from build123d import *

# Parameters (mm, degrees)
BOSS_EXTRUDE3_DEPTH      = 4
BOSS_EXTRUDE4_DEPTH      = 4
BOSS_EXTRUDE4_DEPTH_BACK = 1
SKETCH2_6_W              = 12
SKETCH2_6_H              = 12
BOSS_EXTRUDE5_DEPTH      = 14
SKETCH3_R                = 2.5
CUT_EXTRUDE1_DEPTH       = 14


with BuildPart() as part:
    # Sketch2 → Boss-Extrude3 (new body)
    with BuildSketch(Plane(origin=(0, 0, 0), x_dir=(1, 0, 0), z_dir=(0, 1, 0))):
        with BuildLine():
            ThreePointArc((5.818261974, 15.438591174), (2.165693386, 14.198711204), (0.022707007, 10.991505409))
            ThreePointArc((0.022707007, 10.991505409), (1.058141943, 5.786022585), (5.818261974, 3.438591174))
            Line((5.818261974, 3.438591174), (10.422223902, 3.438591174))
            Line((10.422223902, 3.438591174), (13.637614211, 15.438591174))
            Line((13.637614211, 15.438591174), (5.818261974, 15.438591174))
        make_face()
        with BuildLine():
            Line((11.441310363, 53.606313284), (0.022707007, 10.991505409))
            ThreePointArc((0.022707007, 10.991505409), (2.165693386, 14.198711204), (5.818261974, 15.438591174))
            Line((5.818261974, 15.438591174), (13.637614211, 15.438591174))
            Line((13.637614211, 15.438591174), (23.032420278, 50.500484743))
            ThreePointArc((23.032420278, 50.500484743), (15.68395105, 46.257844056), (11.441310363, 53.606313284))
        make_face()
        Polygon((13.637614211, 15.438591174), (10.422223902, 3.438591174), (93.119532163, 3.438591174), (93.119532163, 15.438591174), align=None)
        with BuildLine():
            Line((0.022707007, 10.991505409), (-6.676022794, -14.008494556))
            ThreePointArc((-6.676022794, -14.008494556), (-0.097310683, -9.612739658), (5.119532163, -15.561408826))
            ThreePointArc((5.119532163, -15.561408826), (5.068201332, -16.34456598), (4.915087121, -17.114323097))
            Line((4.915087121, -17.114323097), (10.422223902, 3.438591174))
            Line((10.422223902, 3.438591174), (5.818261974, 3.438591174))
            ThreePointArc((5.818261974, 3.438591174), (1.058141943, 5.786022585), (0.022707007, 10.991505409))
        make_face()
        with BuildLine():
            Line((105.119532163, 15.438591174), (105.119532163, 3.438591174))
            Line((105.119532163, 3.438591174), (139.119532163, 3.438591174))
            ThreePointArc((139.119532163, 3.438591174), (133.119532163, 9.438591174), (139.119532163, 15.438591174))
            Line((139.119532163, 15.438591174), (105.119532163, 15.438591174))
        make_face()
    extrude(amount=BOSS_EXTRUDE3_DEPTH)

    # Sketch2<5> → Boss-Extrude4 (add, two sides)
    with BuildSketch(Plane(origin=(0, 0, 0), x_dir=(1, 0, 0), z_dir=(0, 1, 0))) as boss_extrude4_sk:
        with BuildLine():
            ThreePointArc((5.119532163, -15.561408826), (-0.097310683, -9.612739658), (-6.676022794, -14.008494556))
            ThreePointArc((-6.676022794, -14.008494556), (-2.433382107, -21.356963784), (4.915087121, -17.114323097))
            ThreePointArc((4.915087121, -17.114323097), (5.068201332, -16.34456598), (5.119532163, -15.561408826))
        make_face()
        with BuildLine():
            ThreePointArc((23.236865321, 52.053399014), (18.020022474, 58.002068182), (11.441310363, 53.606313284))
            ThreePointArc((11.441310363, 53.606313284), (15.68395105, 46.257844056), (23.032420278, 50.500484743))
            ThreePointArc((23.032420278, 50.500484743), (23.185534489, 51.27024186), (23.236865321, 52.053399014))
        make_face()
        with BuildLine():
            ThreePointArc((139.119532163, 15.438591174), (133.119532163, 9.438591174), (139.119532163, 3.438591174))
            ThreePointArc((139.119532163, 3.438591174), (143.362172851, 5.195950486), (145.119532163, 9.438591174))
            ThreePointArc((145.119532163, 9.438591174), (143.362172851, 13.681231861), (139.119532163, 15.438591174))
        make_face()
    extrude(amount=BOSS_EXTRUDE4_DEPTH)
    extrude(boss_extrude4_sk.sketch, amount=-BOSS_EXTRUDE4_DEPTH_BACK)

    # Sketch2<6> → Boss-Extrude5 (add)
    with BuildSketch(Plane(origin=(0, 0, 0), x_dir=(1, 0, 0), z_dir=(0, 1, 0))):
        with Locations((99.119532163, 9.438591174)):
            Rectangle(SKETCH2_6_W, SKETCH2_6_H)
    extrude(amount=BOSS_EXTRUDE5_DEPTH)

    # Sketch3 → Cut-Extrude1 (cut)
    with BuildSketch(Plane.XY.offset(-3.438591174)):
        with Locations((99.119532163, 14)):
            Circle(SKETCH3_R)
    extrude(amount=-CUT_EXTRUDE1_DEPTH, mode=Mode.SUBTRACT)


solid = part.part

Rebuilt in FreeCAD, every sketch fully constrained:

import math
import FreeCAD as App
import Part
import Sketcher
from FreeCAD import Vector
Q = App.Units.Quantity

doc = App.newDocument("Part")
params = doc.addObject("Spreadsheet::Sheet", "Params")
for row, (alias, value) in enumerate([
    ("sketch1_radius", "6 mm"),
    ("sketch1_width", "34 mm"),
    ("pad1_length", "4 mm"),
    ("sketch2_radius", "6 mm"),
    ("pad2_length", "4 mm"),
    ("pad2_length2", "1 mm"),
    ("sketch3_width", "12 mm"),
    ("pad3_length", "14 mm"),
    ("sketch4_diameter", "5 mm"),
    ("pocket1_length", "14 mm"),
], start=1):
    params.set(f"A{row}", alias)
    params.set(f"B{row}", "=" + value)
    params.setAlias(f"B{row}", alias)

body = doc.addObject("PartDesign::Body", "Body")
body.AllowCompound = True

sketch1 = body.newObject("Sketcher::SketchObject", "Sketch")
sketch1.AttachmentSupport = (doc.getObject("XZ_Plane"), [""])
sketch1.MapMode = "FlatFace"
sketch1.addGeometry(Part.LineSegment(Vector(10.4, -3.4, 0), Vector(93.1, -3.4, 0)), False)
sketch1.addGeometry(Part.LineSegment(Vector(93.1, -3.4, 0), Vector(93.1, -15.4, 0)), False)
sketch1.addGeometry(Part.LineSegment(Vector(93.1, -15.4, 0), Vector(13.6, -15.4, 0)), False)
sketch1.addGeometry(Part.LineSegment(Vector(13.6, -15.4, 0), Vector(23, -50.5, 0)), False)
sketch1.addGeometry(Part.ArcOfCircle(Part.Circle(Vector(17.2, -52.1, 0), Vector(0, 0, 1), 6), math.radians(15), math.radians(195)), False)
sketch1.addGeometry(Part.LineSegment(Vector(11.4, -53.6, 0), Vector(0, -11, 0)), False)
sketch1.addGeometry(Part.LineSegment(Vector(0, -11, 0), Vector(-6.7, 14, 0)), False)
sketch1.addGeometry(Part.ArcOfCircle(Part.Circle(Vector(-0.9, 15.6, 0), Vector(0, 0, 1), 6), math.radians(-165), math.radians(0)), False)
sketch1.addGeometry(Part.ArcOfCircle(Part.Circle(Vector(-0.9, 15.6, 0), Vector(0, 0, 1), 6), math.radians(0), math.radians(15)), False)
sketch1.addGeometry(Part.LineSegment(Vector(4.9, 17.1, 0), Vector(10.4, -3.4, 0)), False)
sketch1.addGeometry(Part.LineSegment(Vector(105.1, -15.4, 0), Vector(105.1, -3.4, 0)), False)
sketch1.addGeometry(Part.LineSegment(Vector(105.1, -3.4, 0), Vector(139.1, -3.4, 0)), False)
sketch1.addGeometry(Part.ArcOfCircle(Part.Circle(Vector(139.1, -9.4, 0), Vector(0, 0, 1), 6), math.radians(90), math.radians(270)), False)
sketch1.addGeometry(Part.LineSegment(Vector(139.1, -15.4, 0), Vector(105.1, -15.4, 0)), False)
sketch1.addConstraint(Sketcher.Constraint("Coincident", 0, 2, 1, 1))
sketch1.addConstraint(Sketcher.Constraint("Coincident", 1, 2, 2, 1))
sketch1.addConstraint(Sketcher.Constraint("Coincident", 2, 2, 3, 1))
sketch1.addConstraint(Sketcher.Constraint("Tangent", 3, 2, 4, 1))
sketch1.addConstraint(Sketcher.Constraint("Tangent", 4, 2, 5, 1))
sketch1.addConstraint(Sketcher.Constraint("Coincident", 5, 2, 6, 1))
sketch1.addConstraint(Sketcher.Constraint("Tangent", 6, 2, 7, 1))
sketch1.addConstraint(Sketcher.Constraint("Tangent", 7, 2, 8, 1))
sketch1.addConstraint(Sketcher.Constraint("Tangent", 8, 2, 9, 1))
sketch1.addConstraint(Sketcher.Constraint("Coincident", 9, 2, 0, 1))
sketch1.addConstraint(Sketcher.Constraint("Coincident", 10, 2, 11, 1))
sketch1.addConstraint(Sketcher.Constraint("Tangent", 11, 2, 12, 1))
sketch1.addConstraint(Sketcher.Constraint("Tangent", 12, 2, 13, 1))
sketch1.addConstraint(Sketcher.Constraint("Coincident", 13, 2, 10, 1))
sketch1.addConstraint(Sketcher.Constraint("Horizontal", 0))
sketch1.addConstraint(Sketcher.Constraint("Vertical", 1))
sketch1.addConstraint(Sketcher.Constraint("Horizontal", 2))
sketch1.addConstraint(Sketcher.Constraint("Vertical", 10))
sketch1.addConstraint(Sketcher.Constraint("Horizontal", 11))
sketch1.addConstraint(Sketcher.Constraint("Horizontal", 13))
sketch1.addConstraint(Sketcher.Constraint("Equal", 4, 7))
sketch1.addConstraint(Sketcher.Constraint("Equal", 7, 8))
sketch1.addConstraint(Sketcher.Constraint("Equal", 8, 12))
sketch1.addConstraint(Sketcher.Constraint("Parallel", 3, 5))
sketch1.addConstraint(Sketcher.Constraint("Parallel", 5, 6))
sketch1.addConstraint(Sketcher.Constraint("Parallel", 6, 9))
sketch1.addConstraint(Sketcher.Constraint("Horizontal", 8, 3, 7, 2))
sketch1.addConstraint(Sketcher.Constraint("Horizontal", 9, 2, 10, 2))
sketch1.addConstraint(Sketcher.Constraint("Horizontal", 2, 2, 12, 2))
sketch1.addConstraint(Sketcher.Constraint("Radius", 4, 6.0))
sketch1.addConstraint(Sketcher.Constraint("DistanceX", 11, 1, 11, 2, 34.0))
sketch1.addConstraint(Sketcher.Constraint("Angle", 3, Q("-75 deg")))
sketch1.addConstraint(Sketcher.Constraint("DistanceX", 8, 3, 12, 3, 140.0))
sketch1.addConstraint(Sketcher.Constraint("DistanceY", 12, 3, 8, 3, 25.0))
sketch1.addConstraint(Sketcher.Constraint("DistanceX", 0, 2, 12, 3, 46.0))
sketch1.addConstraint(Sketcher.Constraint("DistanceY", 5, 2, 6, 2, 25.0))
sketch1.addConstraint(Sketcher.Constraint("DistanceY", 4, 3, -1, 1, 52.053399))
sketch1.addConstraint(Sketcher.Constraint("DistanceY", -1, 1, 7, 3, 15.561409))
sketch1.addConstraint(Sketcher.Constraint("DistanceX", -1, 1, 3, 2, 23.03242))
sketch1.setExpression("Constraints[29]", "Params.sketch1_radius")
sketch1.setExpression("Constraints[30]", "Params.sketch1_width")
pad1 = body.newObject("PartDesign::Pad", "Pad")
pad1.Profile = sketch1
pad1.setExpression("Length", "Params.pad1_length")
pad1.Reversed = True

sketch2 = body.newObject("Sketcher::SketchObject", "Sketch001")
sketch2.AttachmentSupport = (doc.getObject("XZ_Plane"), [""])
sketch2.MapMode = "FlatFace"
sketch2.addGeometry(Part.ArcOfCircle(Part.Circle(Vector(-0.9, 15.6, 0), Vector(0, 0, 1), 6), math.radians(-165), math.radians(0)), False)
sketch2.addGeometry(Part.ArcOfCircle(Part.Circle(Vector(-0.9, 15.6, 0), Vector(0, 0, 1), 6), math.radians(15), math.radians(195)), False)
sketch2.addGeometry(Part.ArcOfCircle(Part.Circle(Vector(-0.9, 15.6, 0), Vector(0, 0, 1), 6), math.radians(0), math.radians(15)), False)
sketch2.addGeometry(Part.ArcOfCircle(Part.Circle(Vector(17.2, -52.1, 0), Vector(0, 0, 1), 6), math.radians(-165), math.radians(0)), False)
sketch2.addGeometry(Part.ArcOfCircle(Part.Circle(Vector(17.2, -52.1, 0), Vector(0, 0, 1), 6), math.radians(15), math.radians(195)), False)
sketch2.addGeometry(Part.ArcOfCircle(Part.Circle(Vector(17.2, -52.1, 0), Vector(0, 0, 1), 6), math.radians(0), math.radians(15)), False)
sketch2.addGeometry(Part.ArcOfCircle(Part.Circle(Vector(139.1, -9.4, 0), Vector(0, 0, 1), 6), math.radians(90), math.radians(270)), False)
sketch2.addGeometry(Part.ArcOfCircle(Part.Circle(Vector(139.1, -9.4, 0), Vector(0, 0, 1), 6), math.radians(0), math.radians(90)), False)
sketch2.addGeometry(Part.ArcOfCircle(Part.Circle(Vector(139.1, -9.4, 0), Vector(0, 0, 1), 6), math.radians(-90), math.radians(0)), False)
sketch2.addConstraint(Sketcher.Constraint("Tangent", 0, 1, 1, 2))
sketch2.addConstraint(Sketcher.Constraint("Tangent", 1, 1, 2, 2))
sketch2.addConstraint(Sketcher.Constraint("Tangent", 2, 1, 0, 2))
sketch2.addConstraint(Sketcher.Constraint("Tangent", 3, 1, 4, 2))
sketch2.addConstraint(Sketcher.Constraint("Tangent", 4, 1, 5, 2))
sketch2.addConstraint(Sketcher.Constraint("Tangent", 5, 1, 3, 2))
sketch2.addConstraint(Sketcher.Constraint("Tangent", 6, 1, 7, 2))
sketch2.addConstraint(Sketcher.Constraint("Tangent", 7, 1, 8, 2))
sketch2.addConstraint(Sketcher.Constraint("Tangent", 8, 1, 6, 2))
sketch2.addConstraint(Sketcher.Constraint("Equal", 2, 3))
sketch2.addConstraint(Sketcher.Constraint("Equal", 5, 6))
sketch2.addConstraint(Sketcher.Constraint("Horizontal", 1, 3, 2, 1))
sketch2.addConstraint(Sketcher.Constraint("Horizontal", 4, 3, 5, 1))
sketch2.addConstraint(Sketcher.Constraint("Horizontal", 8, 3, 7, 1))
sketch2.addConstraint(Sketcher.Constraint("Vertical", 8, 3, 6, 1))
sketch2.addConstraint(Sketcher.Constraint("Vertical", 6, 1, 8, 1))
sketch2.addConstraint(Sketcher.Constraint("Radius", 0, 6.0))
sketch2.addConstraint(Sketcher.Constraint("DistanceX", 2, 3, 6, 3, 140.0))
sketch2.addConstraint(Sketcher.Constraint("DistanceY", 6, 3, 2, 3, 25.0))
sketch2.addConstraint(Sketcher.Constraint("DistanceY", 3, 3, -1, 1, 52.053399))
sketch2.addConstraint(Sketcher.Constraint("DistanceY", -1, 1, 0, 3, 15.561409))
sketch2.addConstraint(Sketcher.Constraint("DistanceX", -1, 1, 3, 1, 11.44131))
sketch2.addConstraint(Sketcher.Constraint("DistanceX", -1, 1, 4, 1, 23.03242))
sketch2.addConstraint(Sketcher.Constraint("DistanceX", 0, 1, 3, 3, 23.912888))
sketch2.addConstraint(Sketcher.Constraint("DistanceX", 0, 1, 1, 1, 11.59111))
sketch2.addConstraint(Sketcher.Constraint("DistanceX", 2, 1, 3, 1, 6.321778))
sketch2.addConstraint(Sketcher.Constraint("DistanceX", -1, 1, 3, 3, 17.236865))
sketch2.setExpression("Constraints[16]", "Params.sketch2_radius")
pad2 = body.newObject("PartDesign::Pad", "Pad001")
pad2.Profile = sketch2
pad2.Type = "TwoLengths"
pad2.setExpression("Length", "Params.pad2_length")
pad2.setExpression("Length2", "Params.pad2_length2")
pad2.Reversed = True

sketch3 = body.newObject("Sketcher::SketchObject", "Sketch002")
sketch3.AttachmentSupport = (doc.getObject("XZ_Plane"), [""])
sketch3.MapMode = "FlatFace"
sketch3.addGeometry(Part.LineSegment(Vector(93, -15, 0), Vector(93, -3, 0)), False)
sketch3.addGeometry(Part.LineSegment(Vector(93, -3, 0), Vector(105, -3, 0)), False)
sketch3.addGeometry(Part.LineSegment(Vector(105, -3, 0), Vector(105, -15, 0)), False)
sketch3.addGeometry(Part.LineSegment(Vector(105, -15, 0), Vector(93, -15, 0)), False)
sketch3.addConstraint(Sketcher.Constraint("Coincident", 0, 2, 1, 1))
sketch3.addConstraint(Sketcher.Constraint("Coincident", 1, 2, 2, 1))
sketch3.addConstraint(Sketcher.Constraint("Coincident", 2, 2, 3, 1))
sketch3.addConstraint(Sketcher.Constraint("Coincident", 3, 2, 0, 1))
sketch3.addConstraint(Sketcher.Constraint("Vertical", 0))
sketch3.addConstraint(Sketcher.Constraint("Horizontal", 1))
sketch3.addConstraint(Sketcher.Constraint("Vertical", 2))
sketch3.addConstraint(Sketcher.Constraint("Horizontal", 3))
sketch3.addConstraint(Sketcher.Constraint("Equal", 3, 0))
sketch3.addConstraint(Sketcher.Constraint("DistanceX", 1, 1, 1, 2, 12.0))
sketch3.addConstraint(Sketcher.Constraint("DistanceY", 0, 2, -1, 1, 3.438591))
sketch3.addConstraint(Sketcher.Constraint("DistanceX", -1, 1, 0, 2, 93.119532))
sketch3.setExpression("Constraints[9]", "Params.sketch3_width")
pad3 = body.newObject("PartDesign::Pad", "Pad002")
pad3.Profile = sketch3
pad3.setExpression("Length", "Params.pad3_length")
pad3.Reversed = True

sketch4 = body.newObject("Sketcher::SketchObject", "Sketch003")
sketch4.AttachmentSupport = (doc.getObject("XY_Plane"), [""])
sketch4.MapMode = "FlatFace"
sketch4.AttachmentOffset = App.Placement(Vector(0, 0, -3.438591), App.Rotation())
sketch4.addGeometry(Part.Circle(Vector(99.1, 14, 0), Vector(0, 0, 1), 2.5), False)
sketch4.addConstraint(Sketcher.Constraint("Diameter", 0, 5.0))
sketch4.addConstraint(Sketcher.Constraint("DistanceY", -1, 1, 0, 3, 14.0))
sketch4.addConstraint(Sketcher.Constraint("DistanceX", -1, 1, 0, 3, 99.119532))
sketch4.setExpression("Constraints[0]", "Params.sketch4_diameter")
pocket1 = body.newObject("PartDesign::Pocket", "Pocket")
pocket1.Profile = sketch4
pocket1.setExpression("Length", "Params.pocket1_length")

doc.recompute()
